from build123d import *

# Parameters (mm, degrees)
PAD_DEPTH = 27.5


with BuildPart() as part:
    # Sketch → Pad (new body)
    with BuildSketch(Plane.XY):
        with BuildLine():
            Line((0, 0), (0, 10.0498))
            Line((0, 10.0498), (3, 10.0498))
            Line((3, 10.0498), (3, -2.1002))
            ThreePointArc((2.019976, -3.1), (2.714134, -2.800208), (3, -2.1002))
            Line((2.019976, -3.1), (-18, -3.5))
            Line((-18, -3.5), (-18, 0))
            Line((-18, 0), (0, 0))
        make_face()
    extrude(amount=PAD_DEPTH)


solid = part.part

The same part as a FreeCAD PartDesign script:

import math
import FreeCAD as App
import Part
import Sketcher
Q = App.Units.Quantity

doc = App.newDocument("Part")
body = doc.addObject("PartDesign::Body", "Body")

sketch1 = doc.addObject("Sketcher::SketchObject", "Sketch")
body.addObject(sketch1)
sketch1.AttachmentSupport = (doc.XY_Plane, [""])
sketch1.MapMode = "FlatFace"
sketch1.addGeometry([
    Part.LineSegment(App.Vector(0, 10, 0), App.Vector(0, 0, 0)),
    Part.LineSegment(App.Vector(0, 0, 0), App.Vector(-18, 0, 0)),
    Part.LineSegment(App.Vector(-18, 0, 0), App.Vector(-18, -3.5, 0)),
    Part.LineSegment(App.Vector(-18, -3.5, 0), App.Vector(2, -3.1, 0)),
    Part.ArcOfCircle(Part.Circle(App.Vector(2, -2.1, 0), App.Vector(0, 0, 1), 1), math.radians(-89), math.radians(0)),
    Part.LineSegment(App.Vector(3, -2.1, 0), App.Vector(3, 10, 0)),
    Part.LineSegment(App.Vector(3, 10, 0), App.Vector(0, 10, 0)),
], False)
sketch1.addConstraint([
    Sketcher.Constraint("Coincident", 0, 2, 1, 1),
    Sketcher.Constraint("Coincident", 1, 2, 2, 1),
    Sketcher.Constraint("Coincident", 2, 2, 3, 1),
    Sketcher.Constraint("Tangent", 3, 2, 4, 1),
    Sketcher.Constraint("Tangent", 4, 2, 5, 1),
    Sketcher.Constraint("Coincident", 5, 2, 6, 1),
    Sketcher.Constraint("Coincident", 6, 2, 0, 1),
    Sketcher.Constraint("Vertical", 0),
    Sketcher.Constraint("Horizontal", 1),
    Sketcher.Constraint("Vertical", 2),
    Sketcher.Constraint("Vertical", 5),
    Sketcher.Constraint("Horizontal", 6),
    Sketcher.Constraint("Coincident", 0, 2, -1, 1),
    Sketcher.Constraint("Radius", 4, Q("1.000001 mm")),
    Sketcher.Constraint("DistanceX", 1, 2, 1, 1, Q("18 mm")),
    Sketcher.Constraint("DistanceX", 6, 2, 6, 1, Q("3 mm")),
    Sketcher.Constraint("DistanceY", 2, 2, 2, 1, Q("3.5 mm")),
    Sketcher.Constraint("DistanceY", 5, 1, 5, 2, Q("12.15 mm")),
    Sketcher.Constraint("DistanceY", 3, 2, -1, 1, Q("3.1 mm")),
])
pad1 = doc.addObject("PartDesign::Pad", "Pad")
body.addObject(pad1)
pad1.Profile = sketch1
pad1.Length = 27.5

doc.recompute()
